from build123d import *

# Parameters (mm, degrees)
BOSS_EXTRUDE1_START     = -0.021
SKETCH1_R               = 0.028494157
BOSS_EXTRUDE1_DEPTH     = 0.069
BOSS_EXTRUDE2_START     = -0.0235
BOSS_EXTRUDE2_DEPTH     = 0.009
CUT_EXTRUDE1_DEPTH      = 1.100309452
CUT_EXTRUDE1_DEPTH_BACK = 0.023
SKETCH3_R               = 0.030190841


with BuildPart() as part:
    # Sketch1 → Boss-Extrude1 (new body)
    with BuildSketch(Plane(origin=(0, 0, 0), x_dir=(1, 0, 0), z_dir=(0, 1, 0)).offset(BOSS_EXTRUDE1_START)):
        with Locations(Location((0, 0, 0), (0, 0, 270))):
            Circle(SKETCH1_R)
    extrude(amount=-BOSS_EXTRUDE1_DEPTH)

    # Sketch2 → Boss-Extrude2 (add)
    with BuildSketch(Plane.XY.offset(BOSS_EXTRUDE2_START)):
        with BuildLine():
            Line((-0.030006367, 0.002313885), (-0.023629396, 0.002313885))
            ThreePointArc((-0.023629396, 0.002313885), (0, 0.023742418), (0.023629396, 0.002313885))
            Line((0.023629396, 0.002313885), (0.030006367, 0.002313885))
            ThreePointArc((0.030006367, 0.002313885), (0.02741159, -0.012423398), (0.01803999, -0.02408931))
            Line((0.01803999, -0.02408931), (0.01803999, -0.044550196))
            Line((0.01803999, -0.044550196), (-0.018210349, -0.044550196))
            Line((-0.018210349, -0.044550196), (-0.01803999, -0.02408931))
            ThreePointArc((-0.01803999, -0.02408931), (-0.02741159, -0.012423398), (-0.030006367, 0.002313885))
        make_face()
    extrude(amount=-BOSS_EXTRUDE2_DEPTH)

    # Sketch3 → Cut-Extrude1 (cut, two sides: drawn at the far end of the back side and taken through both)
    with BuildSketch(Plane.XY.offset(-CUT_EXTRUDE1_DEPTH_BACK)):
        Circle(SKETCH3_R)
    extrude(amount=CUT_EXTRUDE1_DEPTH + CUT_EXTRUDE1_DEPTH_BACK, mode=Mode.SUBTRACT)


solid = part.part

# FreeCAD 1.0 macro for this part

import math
import FreeCAD as App
import Part
import Sketcher
from FreeCAD import Vector

doc = App.newDocument("Part")
body = doc.addObject("PartDesign::Body", "Body")

sketch1 = body.newObject("Sketcher::SketchObject", "Sketch")
sketch1.AttachmentSupport = (doc.getObject("XZ_Plane"), [""])
sketch1.MapMode = "FlatFace"
sketch1.AttachmentOffset = App.Placement(Vector(0, 0, 0.021), App.Rotation())
sketch1.addGeometry(Part.Circle(Vector(0, 0, 0), Vector(0, 0, 1), 0.028), False)
sketch1.addConstraint(Sketcher.Constraint("Coincident", 0, 3, -1, 1))
sketch1.addConstraint(Sketcher.Constraint("Diameter", 0, 0.056988))
pad1 = body.newObject("PartDesign::Pad", "Pad")
pad1.Profile = sketch1
pad1.Length = 0.069

sketch2 = body.newObject("Sketcher::SketchObject", "Sketch001")
sketch2.AttachmentSupport = (doc.getObject("XY_Plane"), [""])
sketch2.MapMode = "FlatFace"
sketch2.AttachmentOffset = App.Placement(Vector(0, 0, -0.0235), App.Rotation())
sketch2.addGeometry(Part.LineSegment(Vector(-0.024, 0.002, 0), Vector(-0.03, 0.002, 0)), False)
sketch2.addGeometry(Part.ArcOfCircle(Part.Circle(Vector(0, 0, 0), Vector(0, 0, 1), 0.03), math.radians(176), math.radians(233)), False)
sketch2.addGeometry(Part.LineSegment(Vector(-0.018, -0.024, 0), Vector(-0.018, -0.045, 0)), False)
sketch2.addGeometry(Part.LineSegment(Vector(-0.018, -0.045, 0), Vector(0.018, -0.045, 0)), False)
sketch2.addGeometry(Part.LineSegment(Vector(0.018, -0.045, 0), Vector(0.018, -0.024, 0)), False)
sketch2.addGeometry(Part.ArcOfCircle(Part.Circle(Vector(0, 0, 0), Vector(0, 0, 1), 0.03), math.radians(-53), math.radians(4)), False)
sketch2.addGeometry(Part.LineSegment(Vector(0.03, 0.002, 0), Vector(0.024, 0.002, 0)), False)
sketch2.addGeometry(Part.ArcOfCircle(Part.Circle(Vector(0, 0, 0), Vector(0, 0, 1), 0.024), math.radians(6), math.radians(174)), False)
sketch2.addConstraint(Sketcher.Constraint("Coincident", 0, 2, 1, 1))
sketch2.addConstraint(Sketcher.Constraint("Coincident", 1, 2, 2, 1))
sketch2.addConstraint(Sketcher.Constraint("Coincident", 2, 2, 3, 1))
sketch2.addConstraint(Sketcher.Constraint("Coincident", 3, 2, 4, 1))
sketch2.addConstraint(Sketcher.Constraint("Coincident", 4, 2, 5, 1))
sketch2.addConstraint(Sketcher.Constraint("Coincident", 5, 2, 6, 1))
sketch2.addConstraint(Sketcher.Constraint("Coincident", 6, 2, 7, 1))
sketch2.addConstraint(Sketcher.Constraint("Coincident", 7, 2, 0, 1))
sketch2.addConstraint(Sketcher.Constraint("Horizontal", 0))
sketch2.addConstraint(Sketcher.Constraint("Horizontal", 3))
sketch2.addConstraint(Sketcher.Constraint("Vertical", 4))
sketch2.addConstraint(Sketcher.Constraint("Horizontal", 6))
sketch2.addConstraint(Sketcher.Constraint("Coincident", 1, 3, -1, 1))
sketch2.addConstraint(Sketcher.Constraint("Coincident", 5, 3, -1, 1))
sketch2.addConstraint(Sketcher.Constraint("Coincident", 7, 3, -1, 1))
sketch2.addConstraint(Sketcher.Constraint("Equal", 1, 5))
sketch2.addConstraint(Sketcher.Constraint("Horizontal", 1, 2, 4, 2))
sketch2.addConstraint(Sketcher.Constraint("Horizontal", 0, 2, 5, 2))
sketch2.addConstraint(Sketcher.Constraint("Radius", 1, 0.030095))
sketch2.addConstraint(Sketcher.Constraint("Radius", 7, 0.023742))
sketch2.addConstraint(Sketcher.Constraint("DistanceX", 3, 1, 3, 2, 0.03625))
sketch2.addConstraint(Sketcher.Constraint("DistanceY", 4, 1, 4, 2, 0.020461))
sketch2.addConstraint(Sketcher.Constraint("DistanceX", 1, 2, -1, 1, 0.01804))
sketch2.addConstraint(Sketcher.Constraint("DistanceY", -1, 1, 0, 2, 0.002314))
pad2 = body.newObject("PartDesign::Pad", "Pad001")
pad2.Profile = sketch2
pad2.Length = 0.009
pad2.Reversed = True

sketch3 = body.newObject("Sketcher::SketchObject", "Sketch002")
sketch3.AttachmentSupport = (doc.getObject("XY_Plane"), [""])
sketch3.MapMode = "FlatFace"
sketch3.addGeometry(Part.Circle(Vector(0, 0, 0), Vector(0, 0, 1), 0.03), False)
sketch3.addConstraint(Sketcher.Constraint("Coincident", 0, 3, -1, 1))
sketch3.addConstraint(Sketcher.Constraint("Diameter", 0, 0.060382))
pocket1 = body.newObject("PartDesign::Pocket", "Pocket")
pocket1.Profile = sketch3
pocket1.Type = "TwoLengths"
pocket1.Length = 1.100309
pocket1.Length2 = 0.023
pocket1.Reversed = True

doc.recompute()
